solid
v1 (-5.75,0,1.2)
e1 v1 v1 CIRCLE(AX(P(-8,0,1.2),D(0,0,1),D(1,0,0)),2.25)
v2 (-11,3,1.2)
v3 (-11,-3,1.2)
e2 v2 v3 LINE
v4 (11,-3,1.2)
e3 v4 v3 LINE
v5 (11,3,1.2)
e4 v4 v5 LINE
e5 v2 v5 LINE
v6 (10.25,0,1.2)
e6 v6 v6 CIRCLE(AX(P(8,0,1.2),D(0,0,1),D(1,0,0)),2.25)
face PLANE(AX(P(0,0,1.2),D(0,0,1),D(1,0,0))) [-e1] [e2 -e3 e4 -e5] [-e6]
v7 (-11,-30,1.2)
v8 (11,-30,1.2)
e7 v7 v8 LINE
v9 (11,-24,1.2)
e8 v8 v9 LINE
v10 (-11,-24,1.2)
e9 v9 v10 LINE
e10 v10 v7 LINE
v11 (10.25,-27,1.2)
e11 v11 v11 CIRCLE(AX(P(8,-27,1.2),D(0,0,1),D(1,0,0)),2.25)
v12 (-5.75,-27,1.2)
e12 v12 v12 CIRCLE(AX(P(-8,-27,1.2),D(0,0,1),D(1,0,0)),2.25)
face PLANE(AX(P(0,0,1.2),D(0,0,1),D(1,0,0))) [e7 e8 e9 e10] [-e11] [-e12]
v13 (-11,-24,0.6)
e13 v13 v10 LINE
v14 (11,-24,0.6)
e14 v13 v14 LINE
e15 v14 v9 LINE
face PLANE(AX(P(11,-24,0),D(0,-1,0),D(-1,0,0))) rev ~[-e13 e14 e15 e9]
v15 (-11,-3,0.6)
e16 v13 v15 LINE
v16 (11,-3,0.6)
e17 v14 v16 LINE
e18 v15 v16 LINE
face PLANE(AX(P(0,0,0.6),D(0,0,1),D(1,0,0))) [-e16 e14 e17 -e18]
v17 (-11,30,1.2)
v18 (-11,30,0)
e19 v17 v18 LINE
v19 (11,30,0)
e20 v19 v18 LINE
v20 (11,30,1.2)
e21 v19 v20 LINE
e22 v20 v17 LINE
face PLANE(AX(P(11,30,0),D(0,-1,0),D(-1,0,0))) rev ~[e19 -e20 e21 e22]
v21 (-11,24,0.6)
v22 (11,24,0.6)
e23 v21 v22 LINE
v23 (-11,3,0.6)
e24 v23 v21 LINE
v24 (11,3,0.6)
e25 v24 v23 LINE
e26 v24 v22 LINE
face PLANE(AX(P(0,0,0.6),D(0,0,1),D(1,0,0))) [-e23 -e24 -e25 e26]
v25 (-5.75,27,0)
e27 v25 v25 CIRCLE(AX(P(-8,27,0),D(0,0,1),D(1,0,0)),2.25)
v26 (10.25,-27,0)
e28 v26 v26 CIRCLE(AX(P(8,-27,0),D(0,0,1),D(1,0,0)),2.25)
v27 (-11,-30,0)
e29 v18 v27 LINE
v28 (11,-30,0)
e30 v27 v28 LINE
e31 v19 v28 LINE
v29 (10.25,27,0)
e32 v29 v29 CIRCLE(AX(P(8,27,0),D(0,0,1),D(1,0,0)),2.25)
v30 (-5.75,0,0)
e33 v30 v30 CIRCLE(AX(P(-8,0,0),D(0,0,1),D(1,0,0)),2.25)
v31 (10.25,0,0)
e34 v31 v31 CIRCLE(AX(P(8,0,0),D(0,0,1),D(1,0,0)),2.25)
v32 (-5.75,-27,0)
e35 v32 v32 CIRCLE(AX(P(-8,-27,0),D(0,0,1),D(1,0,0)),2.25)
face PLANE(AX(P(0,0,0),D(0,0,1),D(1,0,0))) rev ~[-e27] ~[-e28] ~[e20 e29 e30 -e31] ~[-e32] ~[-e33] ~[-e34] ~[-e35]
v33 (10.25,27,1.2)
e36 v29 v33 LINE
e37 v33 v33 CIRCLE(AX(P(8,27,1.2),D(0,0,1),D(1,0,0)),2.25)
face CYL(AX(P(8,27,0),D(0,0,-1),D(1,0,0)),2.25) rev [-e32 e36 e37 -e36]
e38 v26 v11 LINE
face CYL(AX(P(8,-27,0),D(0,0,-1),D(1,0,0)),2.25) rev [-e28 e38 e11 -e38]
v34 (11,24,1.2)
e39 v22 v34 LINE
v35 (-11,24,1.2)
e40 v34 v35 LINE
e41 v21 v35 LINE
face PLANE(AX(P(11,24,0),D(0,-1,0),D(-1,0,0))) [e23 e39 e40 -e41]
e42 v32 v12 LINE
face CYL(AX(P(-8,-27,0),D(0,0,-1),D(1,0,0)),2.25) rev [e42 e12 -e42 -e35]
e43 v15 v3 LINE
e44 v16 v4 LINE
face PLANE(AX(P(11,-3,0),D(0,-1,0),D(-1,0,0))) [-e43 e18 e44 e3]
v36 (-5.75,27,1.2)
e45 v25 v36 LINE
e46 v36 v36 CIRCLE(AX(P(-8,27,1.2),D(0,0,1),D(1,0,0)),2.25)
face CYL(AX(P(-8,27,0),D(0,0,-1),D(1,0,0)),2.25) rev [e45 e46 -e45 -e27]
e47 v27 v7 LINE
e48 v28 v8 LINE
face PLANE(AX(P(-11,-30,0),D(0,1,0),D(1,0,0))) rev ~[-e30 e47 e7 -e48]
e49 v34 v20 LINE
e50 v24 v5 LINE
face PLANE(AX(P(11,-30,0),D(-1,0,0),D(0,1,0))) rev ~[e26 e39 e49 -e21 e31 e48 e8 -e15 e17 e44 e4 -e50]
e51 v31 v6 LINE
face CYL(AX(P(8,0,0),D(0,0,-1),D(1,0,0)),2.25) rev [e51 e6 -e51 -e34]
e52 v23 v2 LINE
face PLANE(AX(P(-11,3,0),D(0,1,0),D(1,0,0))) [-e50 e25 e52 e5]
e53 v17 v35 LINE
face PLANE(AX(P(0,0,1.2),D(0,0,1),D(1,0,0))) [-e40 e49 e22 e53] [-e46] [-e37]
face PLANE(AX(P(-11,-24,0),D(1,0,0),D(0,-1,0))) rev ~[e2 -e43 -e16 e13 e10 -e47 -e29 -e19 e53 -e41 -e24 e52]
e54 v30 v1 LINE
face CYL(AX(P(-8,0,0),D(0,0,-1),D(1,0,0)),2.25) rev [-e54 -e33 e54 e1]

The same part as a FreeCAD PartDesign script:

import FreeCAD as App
import Part
import Sketcher
from FreeCAD import Vector
Q = App.Units.Quantity

doc = App.newDocument("Part")
body = doc.addObject("PartDesign::Body", "Body")

sketch1 = doc.addObject("Sketcher::SketchObject", "Sketch")
body.addObject(sketch1)
sketch1.AttachmentSupport = (doc.XY_Plane, [""])
sketch1.MapMode = "FlatFace"
sketch1.addGeometry([
    Part.LineSegment(Vector(-11, -30, 0), Vector(11, -30, 0)),
    Part.LineSegment(Vector(11, -30, 0), Vector(11, 30, 0)),
    Part.LineSegment(Vector(11, 30, 0), Vector(-11, 30, 0)),
    Part.LineSegment(Vector(-11, 30, 0), Vector(-11, -30, 0)),
    Part.Circle(Vector(-8, -27, 0), Vector(0, 0, 1), 2.2),
    Part.Circle(Vector(8, -27, 0), Vector(0, 0, 1), 2.2),
    Part.Circle(Vector(8, 0, 0), Vector(0, 0, 1), 2.2),
    Part.Circle(Vector(-8, 0, 0), Vector(0, 0, 1), 2.2),
    Part.Circle(Vector(8, 27, 0), Vector(0, 0, 1), 2.2),
    Part.Circle(Vector(-8, 27, 0), Vector(0, 0, 1), 2.2),
], False)
sketch1.addConstraint([
    Sketcher.Constraint("Coincident", 0, 2, 1, 1),
    Sketcher.Constraint("Coincident", 1, 2, 2, 1),
    Sketcher.Constraint("Coincident", 2, 2, 3, 1),
    Sketcher.Constraint("Coincident", 3, 2, 0, 1),
    Sketcher.Constraint("Horizontal", 0),
    Sketcher.Constraint("Vertical", 1),
    Sketcher.Constraint("Horizontal", 2),
    Sketcher.Constraint("Vertical", 3),
    Sketcher.Constraint("Equal", 4, 5),
    Sketcher.Constraint("Equal", 5, 6),
    Sketcher.Constraint("Equal", 6, 7),
    Sketcher.Constraint("Equal", 7, 8),
    Sketcher.Constraint("Equal", 8, 9),
    Sketcher.Constraint("Symmetric", 6, 3, 7, 3, -1, 1),
    Sketcher.Constraint("Symmetric", 4, 3, 8, 3, -1, 1),
    Sketcher.Constraint("Symmetric", 5, 3, 9, 3, -1, 1),
    Sketcher.Constraint("Symmetric", 0, 2, 2, 2, -1, 1),
    Sketcher.Constraint("Symmetric", 4, 3, 5, 3, -2),
    Sketcher.Constraint("PointOnObject", 6, 3, -1),
    Sketcher.Constraint("Vertical", 5, 3, 6, 3),
    Sketcher.Constraint("Diameter", 4, Q("4.5 mm")),
    Sketcher.Constraint("DistanceY", 1, 1, 1, 2, Q("60 mm")),
    Sketcher.Constraint("DistanceX", 5, 3, 0, 2, Q("3 mm")),
    Sketcher.Constraint("DistanceY", 0, 2, 5, 3, Q("3 mm")),
    Sketcher.Constraint("DistanceX", 0, 1, 0, 2, Q("22 mm")),
])
pad1 = doc.addObject("PartDesign::Pad", "Pad")
body.addObject(pad1)
pad1.Profile = sketch1
pad1.Length = 0.6

sketch2 = doc.addObject("Sketcher::SketchObject", "Sketch001")
body.addObject(sketch2)
sketch2.AttachmentSupport = (doc.XY_Plane, [""])
sketch2.MapMode = "FlatFace"
sketch2.addGeometry([
    Part.LineSegment(Vector(-11, -24, 0), Vector(-11, -30, 0)),
    Part.LineSegment(Vector(-11, -30, 0), Vector(11, -30, 0)),
    Part.LineSegment(Vector(11, -30, 0), Vector(11, -24, 0)),
    Part.LineSegment(Vector(11, -24, 0), Vector(-11, -24, 0)),
    Part.Circle(Vector(-8, -27, 0), Vector(0, 0, 1), 2.2),
    Part.Circle(Vector(8, -27, 0), Vector(0, 0, 1), 2.2),
    Part.LineSegment(Vector(-11, 3, 0), Vector(-11, -3, 0)),
    Part.LineSegment(Vector(-11, -3, 0), Vector(11, -3, 0)),
    Part.LineSegment(Vector(11, -3, 0), Vector(11, 3, 0)),
    Part.LineSegment(Vector(11, 3, 0), Vector(-11, 3, 0)),
    Part.Circle(Vector(-8, 0, 0), Vector(0, 0, 1), 2.2),
    Part.Circle(Vector(8, 0, 0), Vector(0, 0, 1), 2.2),
    Part.LineSegment(Vector(-11, 30, 0), Vector(-11, 24, 0)),
    Part.LineSegment(Vector(-11, 24, 0), Vector(11, 24, 0)),
    Part.LineSegment(Vector(11, 24, 0), Vector(11, 30, 0)),
    Part.LineSegment(Vector(11, 30, 0), Vector(-11, 30, 0)),
    Part.Circle(Vector(-8, 27, 0), Vector(0, 0, 1), 2.2),
    Part.Circle(Vector(8, 27, 0), Vector(0, 0, 1), 2.2),
], False)
sketch2.addConstraint([
    Sketcher.Constraint("Coincident", 0, 2, 1, 1),
    Sketcher.Constraint("Coincident", 1, 2, 2, 1),
    Sketcher.Constraint("Coincident", 2, 2, 3, 1),
    Sketcher.Constraint("Coincident", 3, 2, 0, 1),
    Sketcher.Constraint("Coincident", 6, 2, 7, 1),
    Sketcher.Constraint("Coincident", 7, 2, 8, 1),
    Sketcher.Constraint("Coincident", 8, 2, 9, 1),
    Sketcher.Constraint("Coincident", 9, 2, 6, 1),
    Sketcher.Constraint("Coincident", 12, 2, 13, 1),
    Sketcher.Constraint("Coincident", 13, 2, 14, 1),
    Sketcher.Constraint("Coincident", 14, 2, 15, 1),
    Sketcher.Constraint("Coincident", 15, 2, 12, 1),
    Sketcher.Constraint("Vertical", 0),
    Sketcher.Constraint("Horizontal", 1),
    Sketcher.Constraint("Vertical", 2),
    Sketcher.Constraint("Horizontal", 3),
    Sketcher.Constraint("Vertical", 6),
    Sketcher.Constraint("Horizontal", 7),
    Sketcher.Constraint("Vertical", 8),
    Sketcher.Constraint("Horizontal", 9),
    Sketcher.Constraint("Vertical", 12),
    Sketcher.Constraint("Horizontal", 13),
    Sketcher.Constraint("Vertical", 14),
    Sketcher.Constraint("Horizontal", 15),
    Sketcher.Constraint("Equal", 4, 5),
    Sketcher.Constraint("Equal", 5, 10),
    Sketcher.Constraint("Equal", 10, 11),
    Sketcher.Constraint("Equal", 11, 16),
    Sketcher.Constraint("Equal", 16, 17),
    Sketcher.Constraint("Symmetric", 10, 3, 11, 3, -1, 1),
    Sketcher.Constraint("Symmetric", 5, 3, 16, 3, -1, 1),
    Sketcher.Constraint("Symmetric", 4, 3, 17, 3, -1, 1),
    Sketcher.Constraint("Symmetric", 6, 2, 8, 2, -1, 1),
    Sketcher.Constraint("Symmetric", 2, 2, 12, 2, -1, 1),
    Sketcher.Constraint("Symmetric", 0, 2, 14, 2, -1, 1),
    Sketcher.Constraint("Symmetric", 4, 3, 5, 3, -2),
    Sketcher.Constraint("PointOnObject", 10, 3, -1),
    Sketcher.Constraint("Vertical", 4, 3, 10, 3),
    Sketcher.Constraint("Vertical", 3, 2, 6, 2),
    Sketcher.Constraint("Vertical", 2, 2, 7, 2),
    Sketcher.Constraint("Equal", 2, 6),
    Sketcher.Constraint("Diameter", 4, Q("4.5 mm")),
    Sketcher.Constraint("DistanceY", 6, 2, -1, 1, Q("3 mm")),
    Sketcher.Constraint("DistanceX", 0, 2, 4, 3, Q("3 mm")),
    Sketcher.Constraint("DistanceY", 0, 2, 4, 3, Q("3 mm")),
    Sketcher.Constraint("DistanceX", 1, 1, 1, 2, Q("22 mm")),
    Sketcher.Constraint("DistanceY", 4, 3, -1, 1, Q("27 mm")),
])
pad2 = doc.addObject("PartDesign::Pad", "Pad001")
body.addObject(pad2)
pad2.Profile = sketch2
pad2.Length = 1.2

doc.recompute()
